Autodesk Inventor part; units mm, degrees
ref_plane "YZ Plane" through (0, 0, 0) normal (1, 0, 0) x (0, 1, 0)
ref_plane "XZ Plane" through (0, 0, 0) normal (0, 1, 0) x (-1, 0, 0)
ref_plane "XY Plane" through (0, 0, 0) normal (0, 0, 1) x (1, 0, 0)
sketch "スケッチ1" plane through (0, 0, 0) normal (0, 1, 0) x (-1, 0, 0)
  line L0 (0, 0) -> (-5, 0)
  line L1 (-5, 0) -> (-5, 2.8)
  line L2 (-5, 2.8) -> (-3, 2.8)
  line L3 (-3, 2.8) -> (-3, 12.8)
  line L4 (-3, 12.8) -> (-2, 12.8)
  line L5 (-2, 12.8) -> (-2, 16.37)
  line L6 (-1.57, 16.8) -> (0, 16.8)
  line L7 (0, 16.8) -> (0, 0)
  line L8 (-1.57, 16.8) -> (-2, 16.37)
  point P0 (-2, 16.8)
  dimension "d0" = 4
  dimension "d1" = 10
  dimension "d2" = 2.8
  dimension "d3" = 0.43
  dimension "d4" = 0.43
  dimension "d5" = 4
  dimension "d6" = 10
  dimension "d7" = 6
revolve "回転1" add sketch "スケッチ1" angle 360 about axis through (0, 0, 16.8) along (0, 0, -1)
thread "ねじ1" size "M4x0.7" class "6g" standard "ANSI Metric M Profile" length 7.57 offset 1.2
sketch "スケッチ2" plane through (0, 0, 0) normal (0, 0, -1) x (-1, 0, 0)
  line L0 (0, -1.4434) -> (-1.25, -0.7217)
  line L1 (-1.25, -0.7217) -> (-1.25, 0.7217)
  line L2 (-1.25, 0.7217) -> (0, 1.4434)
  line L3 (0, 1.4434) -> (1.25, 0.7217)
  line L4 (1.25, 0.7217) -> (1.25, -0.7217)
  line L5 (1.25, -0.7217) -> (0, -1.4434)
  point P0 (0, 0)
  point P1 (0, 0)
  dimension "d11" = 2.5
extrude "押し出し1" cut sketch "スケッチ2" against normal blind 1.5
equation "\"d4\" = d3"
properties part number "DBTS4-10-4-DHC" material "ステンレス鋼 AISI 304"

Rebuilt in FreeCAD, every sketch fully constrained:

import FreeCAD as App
import Part
import Sketcher
from FreeCAD import Vector
Q = App.Units.Quantity

doc = App.newDocument("Part")
body = doc.addObject("PartDesign::Body", "Body")

sketch1 = body.newObject("Sketcher::SketchObject", "Sketch")
sketch1.AttachmentSupport = (doc.getObject("XZ_Plane"), [""])
sketch1.MapMode = "FlatFace"
sketch1.addGeometry(Part.LineSegment(Vector(5, 0, 0), Vector(0, 0, 0)), False)
sketch1.addGeometry(Part.LineSegment(Vector(0, 0, 0), Vector(0, 16.8, 0)), False)
sketch1.addGeometry(Part.LineSegment(Vector(0, 16.8, 0), Vector(1.6, 16.8, 0)), False)
sketch1.addGeometry(Part.LineSegment(Vector(1.6, 16.8, 0), Vector(2, 16.4, 0)), False)
sketch1.addGeometry(Part.LineSegment(Vector(2, 16.4, 0), Vector(2, 12.8, 0)), False)
sketch1.addGeometry(Part.LineSegment(Vector(2, 12.8, 0), Vector(3, 12.8, 0)), False)
sketch1.addGeometry(Part.LineSegment(Vector(3, 12.8, 0), Vector(3, 2.8, 0)), False)
sketch1.addGeometry(Part.LineSegment(Vector(3, 2.8, 0), Vector(5, 2.8, 0)), False)
sketch1.addGeometry(Part.LineSegment(Vector(5, 2.8, 0), Vector(5, 0, 0)), False)
sketch1.addConstraint(Sketcher.Constraint("Coincident", 0, 2, 1, 1))
sketch1.addConstraint(Sketcher.Constraint("Coincident", 1, 2, 2, 1))
sketch1.addConstraint(Sketcher.Constraint("Coincident", 2, 2, 3, 1))
sketch1.addConstraint(Sketcher.Constraint("Coincident", 3, 2, 4, 1))
sketch1.addConstraint(Sketcher.Constraint("Coincident", 4, 2, 5, 1))
sketch1.addConstraint(Sketcher.Constraint("Coincident", 5, 2, 6, 1))
sketch1.addConstraint(Sketcher.Constraint("Coincident", 6, 2, 7, 1))
sketch1.addConstraint(Sketcher.Constraint("Coincident", 7, 2, 8, 1))
sketch1.addConstraint(Sketcher.Constraint("Coincident", 8, 2, 0, 1))
sketch1.addConstraint(Sketcher.Constraint("Horizontal", 0))
sketch1.addConstraint(Sketcher.Constraint("Vertical", 1))
sketch1.addConstraint(Sketcher.Constraint("Horizontal", 2))
sketch1.addConstraint(Sketcher.Constraint("Vertical", 4))
sketch1.addConstraint(Sketcher.Constraint("Horizontal", 5))
sketch1.addConstraint(Sketcher.Constraint("Vertical", 6))
sketch1.addConstraint(Sketcher.Constraint("Horizontal", 7))
sketch1.addConstraint(Sketcher.Constraint("Vertical", 8))
sketch1.addConstraint(Sketcher.Constraint("Coincident", 0, 2, -1, 1))
sketch1.addConstraint(Sketcher.Constraint("DistanceY", 6, 2, 6, 1, 10.0))
sketch1.addConstraint(Sketcher.Constraint("DistanceY", 8, 2, 8, 1, 2.8))
sketch1.addConstraint(Sketcher.Constraint("DistanceY", 4, 2, 2, 2, 4.0))
sketch1.addConstraint(Sketcher.Constraint("DistanceX", 0, 2, 0, 1, 5.0))
sketch1.addConstraint(Sketcher.Constraint("DistanceX", 5, 1, 5, 2, 1.0))
sketch1.addConstraint(Sketcher.Constraint("DistanceX", 7, 1, 7, 2, 2.0))
sketch1.addConstraint(Sketcher.Constraint("Angle", 3, Q("-45 deg")))
sketch1.addConstraint(Sketcher.Constraint("DistanceX", 2, 2, 3, 2, 0.43))
revolution = body.newObject("PartDesign::Revolution", "Revolution")
revolution.Profile = sketch1
revolution.ReferenceAxis = (sketch1, ["V_Axis"])
revolution.Angle = 360

sketch2 = body.newObject("Sketcher::SketchObject", "Sketch001")
sketch2.AttachmentSupport = (doc.getObject("XY_Plane"), [""])
sketch2.MapMode = "FlatFace"
sketch2.addGeometry(Part.LineSegment(Vector(1.2, -0.7, 0), Vector(0, -1.4, 0)), False)
sketch2.addGeometry(Part.LineSegment(Vector(0, -1.4, 0), Vector(-1.2, -0.7, 0)), False)
sketch2.addGeometry(Part.LineSegment(Vector(-1.2, -0.7, 0), Vector(-1.2, 0.7, 0)), False)
sketch2.addGeometry(Part.LineSegment(Vector(-1.2, 0.7, 0), Vector(0, 1.4, 0)), False)
sketch2.addGeometry(Part.LineSegment(Vector(0, 1.4, 0), Vector(1.2, 0.7, 0)), False)
sketch2.addGeometry(Part.LineSegment(Vector(1.2, 0.7, 0), Vector(1.2, -0.7, 0)), False)
sketch2.addConstraint(Sketcher.Constraint("Coincident", 0, 2, 1, 1))
sketch2.addConstraint(Sketcher.Constraint("Coincident", 1, 2, 2, 1))
sketch2.addConstraint(Sketcher.Constraint("Coincident", 2, 2, 3, 1))
sketch2.addConstraint(Sketcher.Constraint("Coincident", 3, 2, 4, 1))
sketch2.addConstraint(Sketcher.Constraint("Coincident", 4, 2, 5, 1))
sketch2.addConstraint(Sketcher.Constraint("Coincident", 5, 2, 0, 1))
sketch2.addConstraint(Sketcher.Constraint("Vertical", 2))
sketch2.addConstraint(Sketcher.Constraint("Vertical", 5))
sketch2.addConstraint(Sketcher.Constraint("Symmetric", 0, 2, 3, 2, -1, 1))
sketch2.addConstraint(Sketcher.Constraint("Symmetric", 1, 2, 4, 2, -1, 1))
sketch2.addConstraint(Sketcher.Constraint("PointOnObject", 0, 2, -2))
sketch2.addConstraint(Sketcher.Constraint("Parallel", 0, 3))
sketch2.addConstraint(Sketcher.Constraint("Horizontal", 2, 2, 4, 2))
sketch2.addConstraint(Sketcher.Constraint("DistanceX", 2, 2, 4, 2, 2.5))
sketch2.addConstraint(Sketcher.Constraint("Angle", 0, Q("-149.9996 deg")))
sketch2.addConstraint(Sketcher.Constraint("DistanceY", 2, 1, 2, 2, 1.4434))
pocket1 = body.newObject("PartDesign::Pocket", "Pocket")
pocket1.Profile = sketch2
pocket1.Length = 1.5
pocket1.Reversed = True

doc.recompute()
